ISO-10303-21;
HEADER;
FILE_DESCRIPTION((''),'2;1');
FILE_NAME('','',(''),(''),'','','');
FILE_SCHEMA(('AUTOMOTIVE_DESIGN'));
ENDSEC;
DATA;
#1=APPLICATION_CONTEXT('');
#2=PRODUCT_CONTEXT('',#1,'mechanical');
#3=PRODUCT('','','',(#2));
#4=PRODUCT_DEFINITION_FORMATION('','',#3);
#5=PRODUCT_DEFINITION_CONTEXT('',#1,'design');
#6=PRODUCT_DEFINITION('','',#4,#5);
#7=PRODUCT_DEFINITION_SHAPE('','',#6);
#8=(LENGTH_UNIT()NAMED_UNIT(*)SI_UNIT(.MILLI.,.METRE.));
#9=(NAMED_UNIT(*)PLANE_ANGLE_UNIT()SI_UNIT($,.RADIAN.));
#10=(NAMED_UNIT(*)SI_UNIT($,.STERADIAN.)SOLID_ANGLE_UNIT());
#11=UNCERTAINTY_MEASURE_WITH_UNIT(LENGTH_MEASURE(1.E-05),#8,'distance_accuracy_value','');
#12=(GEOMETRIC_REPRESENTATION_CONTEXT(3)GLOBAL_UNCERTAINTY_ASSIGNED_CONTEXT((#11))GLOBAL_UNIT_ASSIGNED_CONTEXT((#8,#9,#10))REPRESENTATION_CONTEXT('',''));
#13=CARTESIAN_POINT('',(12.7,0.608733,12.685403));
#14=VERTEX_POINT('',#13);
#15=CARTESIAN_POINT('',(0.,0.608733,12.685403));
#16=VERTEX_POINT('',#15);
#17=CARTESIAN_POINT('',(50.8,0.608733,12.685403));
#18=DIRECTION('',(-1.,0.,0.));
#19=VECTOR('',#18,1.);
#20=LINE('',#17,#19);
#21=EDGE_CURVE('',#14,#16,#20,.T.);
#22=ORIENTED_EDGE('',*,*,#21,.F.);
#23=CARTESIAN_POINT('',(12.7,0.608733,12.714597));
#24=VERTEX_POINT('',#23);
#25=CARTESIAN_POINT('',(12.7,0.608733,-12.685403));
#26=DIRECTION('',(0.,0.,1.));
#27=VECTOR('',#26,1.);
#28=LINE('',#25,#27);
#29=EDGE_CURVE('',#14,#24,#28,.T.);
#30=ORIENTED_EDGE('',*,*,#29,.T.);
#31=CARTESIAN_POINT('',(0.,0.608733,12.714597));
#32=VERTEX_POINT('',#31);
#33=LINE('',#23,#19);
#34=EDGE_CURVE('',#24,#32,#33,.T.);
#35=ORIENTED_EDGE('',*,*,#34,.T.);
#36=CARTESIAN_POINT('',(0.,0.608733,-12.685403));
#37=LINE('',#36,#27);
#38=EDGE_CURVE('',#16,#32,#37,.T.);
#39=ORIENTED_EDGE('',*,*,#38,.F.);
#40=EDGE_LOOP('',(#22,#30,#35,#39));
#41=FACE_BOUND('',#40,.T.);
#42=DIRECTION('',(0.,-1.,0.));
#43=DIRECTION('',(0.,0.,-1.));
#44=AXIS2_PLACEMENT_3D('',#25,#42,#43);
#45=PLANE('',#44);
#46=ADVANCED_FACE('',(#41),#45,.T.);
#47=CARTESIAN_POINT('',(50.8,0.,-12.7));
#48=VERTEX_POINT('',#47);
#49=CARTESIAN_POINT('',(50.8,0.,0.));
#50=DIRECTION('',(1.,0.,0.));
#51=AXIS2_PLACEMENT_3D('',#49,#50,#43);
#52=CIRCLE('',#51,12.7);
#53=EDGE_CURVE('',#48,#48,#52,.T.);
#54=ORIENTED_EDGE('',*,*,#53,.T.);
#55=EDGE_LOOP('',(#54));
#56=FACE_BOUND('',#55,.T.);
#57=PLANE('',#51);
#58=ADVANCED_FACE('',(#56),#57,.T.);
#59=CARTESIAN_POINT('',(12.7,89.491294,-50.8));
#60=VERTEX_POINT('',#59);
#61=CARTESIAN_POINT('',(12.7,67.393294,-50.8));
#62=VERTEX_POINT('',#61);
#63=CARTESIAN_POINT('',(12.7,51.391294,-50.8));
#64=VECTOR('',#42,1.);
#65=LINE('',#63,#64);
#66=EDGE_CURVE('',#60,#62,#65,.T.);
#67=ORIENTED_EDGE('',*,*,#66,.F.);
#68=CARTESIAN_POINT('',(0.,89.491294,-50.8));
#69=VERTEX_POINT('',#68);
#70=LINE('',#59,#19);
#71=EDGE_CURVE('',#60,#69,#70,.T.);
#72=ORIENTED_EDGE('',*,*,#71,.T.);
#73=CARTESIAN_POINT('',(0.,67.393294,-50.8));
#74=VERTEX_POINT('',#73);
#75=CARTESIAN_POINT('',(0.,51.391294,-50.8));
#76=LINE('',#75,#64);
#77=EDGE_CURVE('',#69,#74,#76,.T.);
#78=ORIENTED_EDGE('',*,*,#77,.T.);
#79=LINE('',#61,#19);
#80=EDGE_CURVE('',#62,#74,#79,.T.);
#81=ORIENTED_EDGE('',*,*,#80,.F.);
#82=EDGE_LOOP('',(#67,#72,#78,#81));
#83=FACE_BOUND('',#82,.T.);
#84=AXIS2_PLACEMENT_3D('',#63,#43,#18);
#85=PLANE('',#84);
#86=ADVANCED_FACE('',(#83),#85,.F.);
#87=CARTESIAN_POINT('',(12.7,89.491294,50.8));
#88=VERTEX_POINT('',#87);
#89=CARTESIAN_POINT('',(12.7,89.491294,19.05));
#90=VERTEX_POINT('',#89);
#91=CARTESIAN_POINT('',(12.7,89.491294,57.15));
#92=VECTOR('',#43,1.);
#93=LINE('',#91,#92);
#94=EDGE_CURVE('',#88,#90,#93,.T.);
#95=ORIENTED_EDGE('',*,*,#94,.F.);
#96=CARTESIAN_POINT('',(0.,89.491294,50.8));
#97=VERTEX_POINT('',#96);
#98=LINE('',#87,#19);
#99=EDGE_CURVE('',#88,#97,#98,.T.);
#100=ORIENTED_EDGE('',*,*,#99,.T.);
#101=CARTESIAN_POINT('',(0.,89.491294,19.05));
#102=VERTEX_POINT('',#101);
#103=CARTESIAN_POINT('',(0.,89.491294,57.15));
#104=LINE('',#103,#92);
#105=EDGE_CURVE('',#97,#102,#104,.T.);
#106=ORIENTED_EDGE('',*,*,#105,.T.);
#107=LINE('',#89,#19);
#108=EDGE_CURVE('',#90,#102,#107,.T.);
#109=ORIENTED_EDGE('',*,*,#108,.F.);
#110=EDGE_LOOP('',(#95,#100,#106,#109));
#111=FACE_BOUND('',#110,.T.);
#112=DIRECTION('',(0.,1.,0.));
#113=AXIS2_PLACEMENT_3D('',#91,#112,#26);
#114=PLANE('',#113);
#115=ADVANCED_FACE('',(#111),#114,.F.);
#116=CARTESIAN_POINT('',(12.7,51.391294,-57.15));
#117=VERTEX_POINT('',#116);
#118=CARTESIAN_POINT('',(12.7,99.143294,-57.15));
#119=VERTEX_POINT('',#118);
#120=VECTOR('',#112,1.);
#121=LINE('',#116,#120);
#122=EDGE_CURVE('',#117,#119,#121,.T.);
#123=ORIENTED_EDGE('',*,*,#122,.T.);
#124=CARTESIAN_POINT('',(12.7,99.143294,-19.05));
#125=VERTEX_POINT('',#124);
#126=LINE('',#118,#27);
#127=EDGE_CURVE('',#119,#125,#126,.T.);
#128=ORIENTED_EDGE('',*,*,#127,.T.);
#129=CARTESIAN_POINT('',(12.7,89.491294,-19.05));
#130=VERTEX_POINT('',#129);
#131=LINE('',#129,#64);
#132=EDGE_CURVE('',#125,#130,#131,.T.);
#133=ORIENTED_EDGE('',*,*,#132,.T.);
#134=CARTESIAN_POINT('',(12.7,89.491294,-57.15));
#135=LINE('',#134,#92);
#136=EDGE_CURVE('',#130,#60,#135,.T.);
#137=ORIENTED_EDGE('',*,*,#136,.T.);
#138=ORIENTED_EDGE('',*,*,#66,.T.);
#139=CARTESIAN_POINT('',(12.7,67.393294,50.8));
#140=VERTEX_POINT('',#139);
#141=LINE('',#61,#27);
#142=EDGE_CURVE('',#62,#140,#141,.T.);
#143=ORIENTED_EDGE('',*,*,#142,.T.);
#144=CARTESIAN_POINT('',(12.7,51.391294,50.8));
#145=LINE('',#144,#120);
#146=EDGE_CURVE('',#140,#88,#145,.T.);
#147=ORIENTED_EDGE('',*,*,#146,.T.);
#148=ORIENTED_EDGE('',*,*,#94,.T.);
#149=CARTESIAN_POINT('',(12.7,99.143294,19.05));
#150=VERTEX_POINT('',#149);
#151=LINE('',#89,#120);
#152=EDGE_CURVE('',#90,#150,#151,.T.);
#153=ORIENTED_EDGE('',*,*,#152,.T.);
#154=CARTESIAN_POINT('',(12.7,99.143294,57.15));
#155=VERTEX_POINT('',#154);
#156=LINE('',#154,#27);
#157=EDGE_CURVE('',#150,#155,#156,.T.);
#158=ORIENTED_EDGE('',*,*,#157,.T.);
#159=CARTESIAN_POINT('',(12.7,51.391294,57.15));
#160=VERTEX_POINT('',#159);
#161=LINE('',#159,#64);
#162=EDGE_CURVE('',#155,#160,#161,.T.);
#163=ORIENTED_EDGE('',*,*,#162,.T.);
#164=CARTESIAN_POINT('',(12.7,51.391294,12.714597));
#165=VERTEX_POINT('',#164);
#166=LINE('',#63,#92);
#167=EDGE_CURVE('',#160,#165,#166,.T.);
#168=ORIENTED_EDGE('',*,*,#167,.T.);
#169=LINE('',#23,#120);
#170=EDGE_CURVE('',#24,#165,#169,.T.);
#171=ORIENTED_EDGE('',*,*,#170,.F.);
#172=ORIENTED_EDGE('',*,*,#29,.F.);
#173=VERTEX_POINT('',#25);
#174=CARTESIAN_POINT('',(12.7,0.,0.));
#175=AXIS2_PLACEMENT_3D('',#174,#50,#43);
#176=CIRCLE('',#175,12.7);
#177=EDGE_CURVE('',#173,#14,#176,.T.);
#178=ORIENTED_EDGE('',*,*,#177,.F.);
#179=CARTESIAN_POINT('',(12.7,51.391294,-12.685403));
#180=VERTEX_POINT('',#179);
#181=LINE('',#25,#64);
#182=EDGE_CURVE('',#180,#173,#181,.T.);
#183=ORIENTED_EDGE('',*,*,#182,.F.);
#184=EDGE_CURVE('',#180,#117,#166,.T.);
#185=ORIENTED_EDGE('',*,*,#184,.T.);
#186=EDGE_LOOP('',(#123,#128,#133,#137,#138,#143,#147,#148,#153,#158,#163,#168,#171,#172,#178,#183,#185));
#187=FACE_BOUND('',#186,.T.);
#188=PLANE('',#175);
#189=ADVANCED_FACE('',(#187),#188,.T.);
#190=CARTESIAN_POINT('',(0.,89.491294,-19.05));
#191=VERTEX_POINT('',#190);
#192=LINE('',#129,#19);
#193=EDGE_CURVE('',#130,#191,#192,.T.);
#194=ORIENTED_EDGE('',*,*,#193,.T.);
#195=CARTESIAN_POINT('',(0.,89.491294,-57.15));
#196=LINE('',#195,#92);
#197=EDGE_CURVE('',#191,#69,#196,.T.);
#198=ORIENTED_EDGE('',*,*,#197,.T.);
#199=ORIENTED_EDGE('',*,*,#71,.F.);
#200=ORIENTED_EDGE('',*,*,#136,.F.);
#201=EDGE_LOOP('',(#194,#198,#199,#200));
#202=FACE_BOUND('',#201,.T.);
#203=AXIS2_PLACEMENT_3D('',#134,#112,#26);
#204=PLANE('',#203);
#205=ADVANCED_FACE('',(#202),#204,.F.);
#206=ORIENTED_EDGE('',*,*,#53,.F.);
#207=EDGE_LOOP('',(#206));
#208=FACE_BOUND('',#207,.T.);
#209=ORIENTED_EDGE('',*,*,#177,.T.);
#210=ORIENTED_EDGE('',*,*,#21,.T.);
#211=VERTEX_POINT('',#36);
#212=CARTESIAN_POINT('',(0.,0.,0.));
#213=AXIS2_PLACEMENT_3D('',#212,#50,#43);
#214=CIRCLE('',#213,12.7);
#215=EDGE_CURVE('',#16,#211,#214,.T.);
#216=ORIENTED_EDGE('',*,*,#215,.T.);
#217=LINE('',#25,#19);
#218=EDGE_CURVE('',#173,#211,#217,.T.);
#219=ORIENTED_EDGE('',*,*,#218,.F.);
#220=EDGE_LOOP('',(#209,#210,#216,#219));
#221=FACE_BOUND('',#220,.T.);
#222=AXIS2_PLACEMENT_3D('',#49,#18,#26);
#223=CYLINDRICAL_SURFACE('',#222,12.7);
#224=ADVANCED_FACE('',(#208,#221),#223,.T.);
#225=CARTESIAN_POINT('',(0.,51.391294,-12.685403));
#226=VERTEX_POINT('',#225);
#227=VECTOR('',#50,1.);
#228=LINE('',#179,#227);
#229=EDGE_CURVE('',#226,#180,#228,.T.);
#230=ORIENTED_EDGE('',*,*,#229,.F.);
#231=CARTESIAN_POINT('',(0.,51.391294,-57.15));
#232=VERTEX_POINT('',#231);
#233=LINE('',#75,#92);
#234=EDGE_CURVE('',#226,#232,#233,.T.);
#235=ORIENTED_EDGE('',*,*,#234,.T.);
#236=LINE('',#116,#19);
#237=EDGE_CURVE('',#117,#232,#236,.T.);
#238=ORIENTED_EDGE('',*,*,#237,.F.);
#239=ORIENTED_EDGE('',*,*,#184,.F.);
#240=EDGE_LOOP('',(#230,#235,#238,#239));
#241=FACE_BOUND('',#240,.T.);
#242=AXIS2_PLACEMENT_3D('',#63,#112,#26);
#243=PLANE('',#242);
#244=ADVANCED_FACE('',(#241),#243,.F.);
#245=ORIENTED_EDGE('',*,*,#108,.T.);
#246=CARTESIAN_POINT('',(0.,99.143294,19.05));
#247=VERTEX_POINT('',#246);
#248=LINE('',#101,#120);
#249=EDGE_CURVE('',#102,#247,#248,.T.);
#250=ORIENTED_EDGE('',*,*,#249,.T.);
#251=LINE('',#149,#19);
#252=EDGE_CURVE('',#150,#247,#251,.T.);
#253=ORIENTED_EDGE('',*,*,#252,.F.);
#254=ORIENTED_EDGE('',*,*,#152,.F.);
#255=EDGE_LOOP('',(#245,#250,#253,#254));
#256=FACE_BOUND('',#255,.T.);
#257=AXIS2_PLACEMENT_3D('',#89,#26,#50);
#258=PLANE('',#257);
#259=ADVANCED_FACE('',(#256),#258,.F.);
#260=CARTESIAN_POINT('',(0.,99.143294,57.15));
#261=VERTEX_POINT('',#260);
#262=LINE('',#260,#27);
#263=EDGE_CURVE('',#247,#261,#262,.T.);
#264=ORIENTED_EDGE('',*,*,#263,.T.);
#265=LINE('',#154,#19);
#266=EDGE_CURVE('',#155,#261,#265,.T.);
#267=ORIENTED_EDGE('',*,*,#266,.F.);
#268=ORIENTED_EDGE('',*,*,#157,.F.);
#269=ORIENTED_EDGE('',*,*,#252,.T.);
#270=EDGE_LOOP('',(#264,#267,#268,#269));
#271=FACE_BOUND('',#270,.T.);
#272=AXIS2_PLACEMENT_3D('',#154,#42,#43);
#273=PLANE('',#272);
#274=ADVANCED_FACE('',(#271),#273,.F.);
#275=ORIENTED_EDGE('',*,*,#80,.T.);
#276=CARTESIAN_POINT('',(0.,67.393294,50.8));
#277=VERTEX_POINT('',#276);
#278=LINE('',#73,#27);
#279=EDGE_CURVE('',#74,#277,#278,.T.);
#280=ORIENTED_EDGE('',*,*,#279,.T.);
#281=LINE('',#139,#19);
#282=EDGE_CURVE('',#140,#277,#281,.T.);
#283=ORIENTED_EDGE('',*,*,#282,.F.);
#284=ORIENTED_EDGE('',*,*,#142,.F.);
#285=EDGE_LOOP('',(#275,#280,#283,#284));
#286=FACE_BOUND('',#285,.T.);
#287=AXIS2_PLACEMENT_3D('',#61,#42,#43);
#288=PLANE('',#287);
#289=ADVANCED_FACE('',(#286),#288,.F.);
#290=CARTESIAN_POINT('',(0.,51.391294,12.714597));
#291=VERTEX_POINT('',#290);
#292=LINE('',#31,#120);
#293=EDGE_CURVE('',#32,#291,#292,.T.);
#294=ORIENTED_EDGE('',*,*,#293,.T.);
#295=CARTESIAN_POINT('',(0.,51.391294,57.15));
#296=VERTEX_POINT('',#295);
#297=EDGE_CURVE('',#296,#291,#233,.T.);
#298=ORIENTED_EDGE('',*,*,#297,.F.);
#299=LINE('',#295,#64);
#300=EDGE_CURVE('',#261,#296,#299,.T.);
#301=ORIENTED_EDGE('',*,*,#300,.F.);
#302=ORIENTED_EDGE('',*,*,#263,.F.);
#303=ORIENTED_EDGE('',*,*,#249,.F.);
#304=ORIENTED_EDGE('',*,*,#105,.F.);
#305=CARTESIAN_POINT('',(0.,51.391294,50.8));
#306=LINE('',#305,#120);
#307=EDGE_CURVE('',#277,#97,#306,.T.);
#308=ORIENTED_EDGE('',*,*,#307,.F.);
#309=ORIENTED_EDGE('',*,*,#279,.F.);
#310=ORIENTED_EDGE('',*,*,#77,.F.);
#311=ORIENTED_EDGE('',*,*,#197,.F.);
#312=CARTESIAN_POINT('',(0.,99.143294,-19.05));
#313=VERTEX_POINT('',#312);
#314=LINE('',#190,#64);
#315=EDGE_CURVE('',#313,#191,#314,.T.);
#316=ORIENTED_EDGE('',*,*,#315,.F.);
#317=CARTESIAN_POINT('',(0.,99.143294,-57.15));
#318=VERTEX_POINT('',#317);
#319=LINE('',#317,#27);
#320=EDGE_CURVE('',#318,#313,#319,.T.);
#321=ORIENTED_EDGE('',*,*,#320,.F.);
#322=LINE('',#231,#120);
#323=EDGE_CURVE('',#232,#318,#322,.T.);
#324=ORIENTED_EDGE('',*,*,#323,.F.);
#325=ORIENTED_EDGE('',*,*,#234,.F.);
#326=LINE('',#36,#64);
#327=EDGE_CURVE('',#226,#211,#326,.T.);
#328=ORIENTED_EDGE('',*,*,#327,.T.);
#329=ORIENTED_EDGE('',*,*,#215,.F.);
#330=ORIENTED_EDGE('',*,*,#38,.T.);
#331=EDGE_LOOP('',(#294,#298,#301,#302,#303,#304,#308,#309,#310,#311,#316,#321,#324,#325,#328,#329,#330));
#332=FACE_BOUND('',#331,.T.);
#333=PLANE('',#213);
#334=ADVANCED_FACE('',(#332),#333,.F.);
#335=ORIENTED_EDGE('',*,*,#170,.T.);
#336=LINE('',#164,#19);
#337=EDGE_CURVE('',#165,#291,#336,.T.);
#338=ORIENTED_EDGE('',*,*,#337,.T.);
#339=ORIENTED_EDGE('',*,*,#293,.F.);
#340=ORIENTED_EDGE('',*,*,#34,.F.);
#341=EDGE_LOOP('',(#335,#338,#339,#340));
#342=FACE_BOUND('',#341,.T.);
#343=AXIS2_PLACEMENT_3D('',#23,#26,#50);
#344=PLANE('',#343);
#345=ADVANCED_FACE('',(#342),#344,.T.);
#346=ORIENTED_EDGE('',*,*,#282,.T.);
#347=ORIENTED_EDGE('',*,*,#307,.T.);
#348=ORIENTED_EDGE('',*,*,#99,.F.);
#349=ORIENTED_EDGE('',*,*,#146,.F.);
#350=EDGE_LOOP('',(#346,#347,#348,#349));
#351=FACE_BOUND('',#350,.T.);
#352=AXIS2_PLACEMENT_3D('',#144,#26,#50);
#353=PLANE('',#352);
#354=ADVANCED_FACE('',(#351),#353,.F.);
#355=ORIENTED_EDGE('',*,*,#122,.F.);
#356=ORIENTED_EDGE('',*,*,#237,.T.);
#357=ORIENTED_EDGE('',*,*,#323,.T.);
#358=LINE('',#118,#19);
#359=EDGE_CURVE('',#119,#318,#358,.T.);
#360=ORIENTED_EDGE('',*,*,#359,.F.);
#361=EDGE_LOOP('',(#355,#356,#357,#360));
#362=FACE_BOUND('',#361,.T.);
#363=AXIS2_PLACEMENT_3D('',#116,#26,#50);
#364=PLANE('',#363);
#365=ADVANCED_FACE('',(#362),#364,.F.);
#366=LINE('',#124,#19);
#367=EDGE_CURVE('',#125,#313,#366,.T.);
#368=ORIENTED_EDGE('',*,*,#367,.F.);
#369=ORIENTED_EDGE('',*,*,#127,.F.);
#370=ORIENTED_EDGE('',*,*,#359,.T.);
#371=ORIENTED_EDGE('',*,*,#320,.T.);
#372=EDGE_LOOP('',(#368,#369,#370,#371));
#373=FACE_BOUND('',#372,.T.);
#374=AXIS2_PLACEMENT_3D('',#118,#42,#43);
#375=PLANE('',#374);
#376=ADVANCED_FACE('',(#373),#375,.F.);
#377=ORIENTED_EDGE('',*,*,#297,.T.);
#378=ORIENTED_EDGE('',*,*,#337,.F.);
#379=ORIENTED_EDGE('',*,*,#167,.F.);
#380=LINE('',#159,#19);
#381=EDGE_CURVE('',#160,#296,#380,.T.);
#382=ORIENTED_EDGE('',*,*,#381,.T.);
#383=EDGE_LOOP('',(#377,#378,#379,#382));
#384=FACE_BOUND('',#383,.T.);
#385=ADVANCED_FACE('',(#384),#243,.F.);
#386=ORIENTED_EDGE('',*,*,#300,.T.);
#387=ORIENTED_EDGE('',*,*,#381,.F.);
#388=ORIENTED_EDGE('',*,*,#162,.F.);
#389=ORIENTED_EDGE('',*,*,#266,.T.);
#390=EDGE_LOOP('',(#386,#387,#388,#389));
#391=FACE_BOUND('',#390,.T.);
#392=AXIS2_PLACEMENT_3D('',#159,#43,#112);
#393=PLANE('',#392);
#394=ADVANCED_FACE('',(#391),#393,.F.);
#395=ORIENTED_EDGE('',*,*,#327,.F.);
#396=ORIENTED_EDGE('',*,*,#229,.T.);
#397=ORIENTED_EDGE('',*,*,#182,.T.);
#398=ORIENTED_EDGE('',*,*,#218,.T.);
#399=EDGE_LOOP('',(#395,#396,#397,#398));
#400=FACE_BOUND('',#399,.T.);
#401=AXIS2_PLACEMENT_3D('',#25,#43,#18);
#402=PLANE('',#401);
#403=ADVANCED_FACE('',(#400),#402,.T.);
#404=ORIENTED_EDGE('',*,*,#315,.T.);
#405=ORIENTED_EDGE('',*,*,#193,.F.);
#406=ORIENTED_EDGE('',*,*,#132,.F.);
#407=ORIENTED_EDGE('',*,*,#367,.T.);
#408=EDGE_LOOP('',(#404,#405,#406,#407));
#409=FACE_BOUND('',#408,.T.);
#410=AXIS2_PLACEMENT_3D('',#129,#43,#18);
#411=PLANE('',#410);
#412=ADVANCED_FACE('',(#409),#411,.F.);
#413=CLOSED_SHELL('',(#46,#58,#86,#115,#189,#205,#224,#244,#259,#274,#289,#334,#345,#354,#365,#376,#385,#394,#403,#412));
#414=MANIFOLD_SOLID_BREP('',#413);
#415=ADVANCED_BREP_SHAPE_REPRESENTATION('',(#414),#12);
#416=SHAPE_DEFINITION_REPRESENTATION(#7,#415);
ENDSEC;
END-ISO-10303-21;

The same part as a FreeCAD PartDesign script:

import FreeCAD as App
import Part
import Sketcher
Q = App.Units.Quantity


def add_polygon(sketch, points):
    """Adds a closed chain of lines whose ends are joined by coincident constraints."""
    first, n = sketch.GeometryCount, len(points)
    for a, b in zip(points, points[1:] + points[:1]):
        sketch.addGeometry(Part.LineSegment(App.Vector(*a, 0), App.Vector(*b, 0)), False)
    for i in range(n):
        sketch.addConstraint(Sketcher.Constraint("Coincident", first + i, 2, first + (i + 1) % n, 1))

doc = App.newDocument("Part")
body = doc.addObject("PartDesign::Body", "Body")

sketch1 = body.newObject("Sketcher::SketchObject", "Sketch")
sketch1.AttachmentSupport = (doc.getObject("YZ_Plane"), [""])
sketch1.MapMode = "FlatFace"
sketch1.addGeometry(Part.Circle(App.Vector(0, 0, 0), App.Vector(0, 0, 1), 12.7), False)
sketch1.addConstraint(Sketcher.Constraint("Coincident", 0, 3, -1, 1))
sketch1.addConstraint(Sketcher.Constraint("Diameter", 0, Q("1 in")))
pad1 = body.newObject("PartDesign::Pad", "Pad")
pad1.Profile = sketch1
pad1.Length = Q("2 in")

sketch2 = body.newObject("Sketcher::SketchObject", "Sketch001")
sketch2.AttachmentSupport = (doc.getObject("YZ_Plane"), [""])
sketch2.MapMode = "FlatFace"
add_polygon(sketch2, [(51.408733, -12.685403), (0.608733, -12.685403), (0.608733, 12.714597), (51.408733, 12.714597)])
sketch2.addConstraint(Sketcher.Constraint("Horizontal", 0))
sketch2.addConstraint(Sketcher.Constraint("Vertical", 1))
sketch2.addConstraint(Sketcher.Constraint("Horizontal", 2))
sketch2.addConstraint(Sketcher.Constraint("Vertical", 3))
sketch2.addConstraint(Sketcher.Constraint("DistanceX", 0, 2, 0, 1, Q("2 in")))
sketch2.addConstraint(Sketcher.Constraint("DistanceY", 1, 1, 1, 2, Q("1 in")))
sketch2.addConstraint(Sketcher.Constraint("DistanceX", -1, 1, 0, 2, Q("0.608733 mm")))
sketch2.addConstraint(Sketcher.Constraint("DistanceY", 0, 2, -1, 1, Q("12.685403 mm")))
pad2 = body.newObject("PartDesign::Pad", "Pad001")
pad2.Profile = sketch2
pad2.Length = Q("0.5 in")
body2 = doc.addObject("PartDesign::Body", "Body001")

sketch3 = body2.newObject("Sketcher::SketchObject", "Sketch002")
sketch3.AttachmentSupport = (doc.getObject("YZ_Plane001"), [""])
sketch3.MapMode = "FlatFace"
add_polygon(sketch3, [(67.393294, 50.8), (51.391294, 50.8), (51.391294, -50.8), (67.393294, -50.8)])
sketch3.addConstraint(Sketcher.Constraint("Horizontal", 0))
sketch3.addConstraint(Sketcher.Constraint("Vertical", 1))
sketch3.addConstraint(Sketcher.Constraint("Horizontal", 2))
sketch3.addConstraint(Sketcher.Constraint("Vertical", 3))
sketch3.addConstraint(Sketcher.Constraint("DistanceY", 1, 2, 1, 1, Q("4 in")))
sketch3.addConstraint(Sketcher.Constraint("DistanceY", -1, 1, 0, 2, Q("2 in")))
sketch3.addConstraint(Sketcher.Constraint("DistanceX", 0, 2, 0, 1, Q("0.63 in")))
sketch3.addConstraint(Sketcher.Constraint("DistanceX", -1, 1, 0, 2, Q("51.391294 mm")))
pad3 = body2.newObject("PartDesign::Pad", "Pad002")
pad3.Profile = sketch3
pad3.Length = Q("0.5 in")

sketch4 = body2.newObject("Sketcher::SketchObject", "Sketch003")
sketch4.AttachmentSupport = (doc.getObject("YZ_Plane001"), [""])
sketch4.MapMode = "FlatFace"
add_polygon(sketch4, [(89.491294, 57.15), (51.391294, 57.15), (51.391294, 50.8), (89.491294, 50.8)])
add_polygon(sketch4, [(89.491294, -50.8), (51.391294, -50.8), (51.391294, -57.15), (89.491294, -57.15)])
sketch4.addConstraint(Sketcher.Constraint("Horizontal", 0))
sketch4.addConstraint(Sketcher.Constraint("Vertical", 1))
sketch4.addConstraint(Sketcher.Constraint("Horizontal", 2))
sketch4.addConstraint(Sketcher.Constraint("Vertical", 3))
sketch4.addConstraint(Sketcher.Constraint("Horizontal", 4))
sketch4.addConstraint(Sketcher.Constraint("Vertical", 5))
sketch4.addConstraint(Sketcher.Constraint("Horizontal", 6))
sketch4.addConstraint(Sketcher.Constraint("Vertical", 7))
sketch4.addConstraint(Sketcher.Constraint("Symmetric", 1, 2, 4, 2, -1))
sketch4.addConstraint(Sketcher.Constraint("Symmetric", 3, 2, 6, 2, -1))
sketch4.addConstraint(Sketcher.Constraint("DistanceX", 0, 2, 0, 1, Q("1.5 in")))
sketch4.addConstraint(Sketcher.Constraint("DistanceY", -1, 1, 1, 2, Q("2 in")))
sketch4.addConstraint(Sketcher.Constraint("DistanceY", 1, 2, 1, 1, Q("0.25 in")))
sketch4.addConstraint(Sketcher.Constraint("DistanceX", -1, 1, 0, 2, Q("51.391294 mm")))
pad4 = body2.newObject("PartDesign::Pad", "Pad003")
pad4.Profile = sketch4
pad4.Length = Q("0.5 in")

sketch5 = body2.newObject("Sketcher::SketchObject", "Sketch004")
sketch5.AttachmentSupport = (doc.getObject("YZ_Plane001"), [""])
sketch5.MapMode = "FlatFace"
add_polygon(sketch5, [(99.143294, 57.15), (89.491294, 57.15), (89.491294, 19.05), (99.143294, 19.05)])
add_polygon(sketch5, [(99.143294, -19.05), (89.491294, -19.05), (89.491294, -57.15), (99.143294, -57.15)])
sketch5.addConstraint(Sketcher.Constraint("Horizontal", 0))
sketch5.addConstraint(Sketcher.Constraint("Vertical", 1))
sketch5.addConstraint(Sketcher.Constraint("Horizontal", 2))
sketch5.addConstraint(Sketcher.Constraint("Vertical", 3))
sketch5.addConstraint(Sketcher.Constraint("Horizontal", 4))
sketch5.addConstraint(Sketcher.Constraint("Vertical", 5))
sketch5.addConstraint(Sketcher.Constraint("Horizontal", 6))
sketch5.addConstraint(Sketcher.Constraint("Vertical", 7))
sketch5.addConstraint(Sketcher.Constraint("Symmetric", 1, 2, 4, 2, -1))
sketch5.addConstraint(Sketcher.Constraint("Symmetric", 3, 2, 6, 2, -1))
sketch5.addConstraint(Sketcher.Constraint("DistanceY", 1, 2, 1, 1, Q("1.5 in")))
sketch5.addConstraint(Sketcher.Constraint("DistanceY", 4, 2, 0, 2, Q("3 in")))
sketch5.addConstraint(Sketcher.Constraint("DistanceX", 0, 2, 0, 1, Q("0.38 in")))
sketch5.addConstraint(Sketcher.Constraint("DistanceX", -1, 1, 0, 2, Q("89.491294 mm")))
pad5 = body2.newObject("PartDesign::Pad", "Pad004")
pad5.Profile = sketch5
pad5.Length = Q("0.5 in")
doc.recompute()

boolean = body.newObject("PartDesign::Boolean", "Boolean")
boolean.Type = "Fuse"
boolean.addObjects([body2])

doc.recompute()
